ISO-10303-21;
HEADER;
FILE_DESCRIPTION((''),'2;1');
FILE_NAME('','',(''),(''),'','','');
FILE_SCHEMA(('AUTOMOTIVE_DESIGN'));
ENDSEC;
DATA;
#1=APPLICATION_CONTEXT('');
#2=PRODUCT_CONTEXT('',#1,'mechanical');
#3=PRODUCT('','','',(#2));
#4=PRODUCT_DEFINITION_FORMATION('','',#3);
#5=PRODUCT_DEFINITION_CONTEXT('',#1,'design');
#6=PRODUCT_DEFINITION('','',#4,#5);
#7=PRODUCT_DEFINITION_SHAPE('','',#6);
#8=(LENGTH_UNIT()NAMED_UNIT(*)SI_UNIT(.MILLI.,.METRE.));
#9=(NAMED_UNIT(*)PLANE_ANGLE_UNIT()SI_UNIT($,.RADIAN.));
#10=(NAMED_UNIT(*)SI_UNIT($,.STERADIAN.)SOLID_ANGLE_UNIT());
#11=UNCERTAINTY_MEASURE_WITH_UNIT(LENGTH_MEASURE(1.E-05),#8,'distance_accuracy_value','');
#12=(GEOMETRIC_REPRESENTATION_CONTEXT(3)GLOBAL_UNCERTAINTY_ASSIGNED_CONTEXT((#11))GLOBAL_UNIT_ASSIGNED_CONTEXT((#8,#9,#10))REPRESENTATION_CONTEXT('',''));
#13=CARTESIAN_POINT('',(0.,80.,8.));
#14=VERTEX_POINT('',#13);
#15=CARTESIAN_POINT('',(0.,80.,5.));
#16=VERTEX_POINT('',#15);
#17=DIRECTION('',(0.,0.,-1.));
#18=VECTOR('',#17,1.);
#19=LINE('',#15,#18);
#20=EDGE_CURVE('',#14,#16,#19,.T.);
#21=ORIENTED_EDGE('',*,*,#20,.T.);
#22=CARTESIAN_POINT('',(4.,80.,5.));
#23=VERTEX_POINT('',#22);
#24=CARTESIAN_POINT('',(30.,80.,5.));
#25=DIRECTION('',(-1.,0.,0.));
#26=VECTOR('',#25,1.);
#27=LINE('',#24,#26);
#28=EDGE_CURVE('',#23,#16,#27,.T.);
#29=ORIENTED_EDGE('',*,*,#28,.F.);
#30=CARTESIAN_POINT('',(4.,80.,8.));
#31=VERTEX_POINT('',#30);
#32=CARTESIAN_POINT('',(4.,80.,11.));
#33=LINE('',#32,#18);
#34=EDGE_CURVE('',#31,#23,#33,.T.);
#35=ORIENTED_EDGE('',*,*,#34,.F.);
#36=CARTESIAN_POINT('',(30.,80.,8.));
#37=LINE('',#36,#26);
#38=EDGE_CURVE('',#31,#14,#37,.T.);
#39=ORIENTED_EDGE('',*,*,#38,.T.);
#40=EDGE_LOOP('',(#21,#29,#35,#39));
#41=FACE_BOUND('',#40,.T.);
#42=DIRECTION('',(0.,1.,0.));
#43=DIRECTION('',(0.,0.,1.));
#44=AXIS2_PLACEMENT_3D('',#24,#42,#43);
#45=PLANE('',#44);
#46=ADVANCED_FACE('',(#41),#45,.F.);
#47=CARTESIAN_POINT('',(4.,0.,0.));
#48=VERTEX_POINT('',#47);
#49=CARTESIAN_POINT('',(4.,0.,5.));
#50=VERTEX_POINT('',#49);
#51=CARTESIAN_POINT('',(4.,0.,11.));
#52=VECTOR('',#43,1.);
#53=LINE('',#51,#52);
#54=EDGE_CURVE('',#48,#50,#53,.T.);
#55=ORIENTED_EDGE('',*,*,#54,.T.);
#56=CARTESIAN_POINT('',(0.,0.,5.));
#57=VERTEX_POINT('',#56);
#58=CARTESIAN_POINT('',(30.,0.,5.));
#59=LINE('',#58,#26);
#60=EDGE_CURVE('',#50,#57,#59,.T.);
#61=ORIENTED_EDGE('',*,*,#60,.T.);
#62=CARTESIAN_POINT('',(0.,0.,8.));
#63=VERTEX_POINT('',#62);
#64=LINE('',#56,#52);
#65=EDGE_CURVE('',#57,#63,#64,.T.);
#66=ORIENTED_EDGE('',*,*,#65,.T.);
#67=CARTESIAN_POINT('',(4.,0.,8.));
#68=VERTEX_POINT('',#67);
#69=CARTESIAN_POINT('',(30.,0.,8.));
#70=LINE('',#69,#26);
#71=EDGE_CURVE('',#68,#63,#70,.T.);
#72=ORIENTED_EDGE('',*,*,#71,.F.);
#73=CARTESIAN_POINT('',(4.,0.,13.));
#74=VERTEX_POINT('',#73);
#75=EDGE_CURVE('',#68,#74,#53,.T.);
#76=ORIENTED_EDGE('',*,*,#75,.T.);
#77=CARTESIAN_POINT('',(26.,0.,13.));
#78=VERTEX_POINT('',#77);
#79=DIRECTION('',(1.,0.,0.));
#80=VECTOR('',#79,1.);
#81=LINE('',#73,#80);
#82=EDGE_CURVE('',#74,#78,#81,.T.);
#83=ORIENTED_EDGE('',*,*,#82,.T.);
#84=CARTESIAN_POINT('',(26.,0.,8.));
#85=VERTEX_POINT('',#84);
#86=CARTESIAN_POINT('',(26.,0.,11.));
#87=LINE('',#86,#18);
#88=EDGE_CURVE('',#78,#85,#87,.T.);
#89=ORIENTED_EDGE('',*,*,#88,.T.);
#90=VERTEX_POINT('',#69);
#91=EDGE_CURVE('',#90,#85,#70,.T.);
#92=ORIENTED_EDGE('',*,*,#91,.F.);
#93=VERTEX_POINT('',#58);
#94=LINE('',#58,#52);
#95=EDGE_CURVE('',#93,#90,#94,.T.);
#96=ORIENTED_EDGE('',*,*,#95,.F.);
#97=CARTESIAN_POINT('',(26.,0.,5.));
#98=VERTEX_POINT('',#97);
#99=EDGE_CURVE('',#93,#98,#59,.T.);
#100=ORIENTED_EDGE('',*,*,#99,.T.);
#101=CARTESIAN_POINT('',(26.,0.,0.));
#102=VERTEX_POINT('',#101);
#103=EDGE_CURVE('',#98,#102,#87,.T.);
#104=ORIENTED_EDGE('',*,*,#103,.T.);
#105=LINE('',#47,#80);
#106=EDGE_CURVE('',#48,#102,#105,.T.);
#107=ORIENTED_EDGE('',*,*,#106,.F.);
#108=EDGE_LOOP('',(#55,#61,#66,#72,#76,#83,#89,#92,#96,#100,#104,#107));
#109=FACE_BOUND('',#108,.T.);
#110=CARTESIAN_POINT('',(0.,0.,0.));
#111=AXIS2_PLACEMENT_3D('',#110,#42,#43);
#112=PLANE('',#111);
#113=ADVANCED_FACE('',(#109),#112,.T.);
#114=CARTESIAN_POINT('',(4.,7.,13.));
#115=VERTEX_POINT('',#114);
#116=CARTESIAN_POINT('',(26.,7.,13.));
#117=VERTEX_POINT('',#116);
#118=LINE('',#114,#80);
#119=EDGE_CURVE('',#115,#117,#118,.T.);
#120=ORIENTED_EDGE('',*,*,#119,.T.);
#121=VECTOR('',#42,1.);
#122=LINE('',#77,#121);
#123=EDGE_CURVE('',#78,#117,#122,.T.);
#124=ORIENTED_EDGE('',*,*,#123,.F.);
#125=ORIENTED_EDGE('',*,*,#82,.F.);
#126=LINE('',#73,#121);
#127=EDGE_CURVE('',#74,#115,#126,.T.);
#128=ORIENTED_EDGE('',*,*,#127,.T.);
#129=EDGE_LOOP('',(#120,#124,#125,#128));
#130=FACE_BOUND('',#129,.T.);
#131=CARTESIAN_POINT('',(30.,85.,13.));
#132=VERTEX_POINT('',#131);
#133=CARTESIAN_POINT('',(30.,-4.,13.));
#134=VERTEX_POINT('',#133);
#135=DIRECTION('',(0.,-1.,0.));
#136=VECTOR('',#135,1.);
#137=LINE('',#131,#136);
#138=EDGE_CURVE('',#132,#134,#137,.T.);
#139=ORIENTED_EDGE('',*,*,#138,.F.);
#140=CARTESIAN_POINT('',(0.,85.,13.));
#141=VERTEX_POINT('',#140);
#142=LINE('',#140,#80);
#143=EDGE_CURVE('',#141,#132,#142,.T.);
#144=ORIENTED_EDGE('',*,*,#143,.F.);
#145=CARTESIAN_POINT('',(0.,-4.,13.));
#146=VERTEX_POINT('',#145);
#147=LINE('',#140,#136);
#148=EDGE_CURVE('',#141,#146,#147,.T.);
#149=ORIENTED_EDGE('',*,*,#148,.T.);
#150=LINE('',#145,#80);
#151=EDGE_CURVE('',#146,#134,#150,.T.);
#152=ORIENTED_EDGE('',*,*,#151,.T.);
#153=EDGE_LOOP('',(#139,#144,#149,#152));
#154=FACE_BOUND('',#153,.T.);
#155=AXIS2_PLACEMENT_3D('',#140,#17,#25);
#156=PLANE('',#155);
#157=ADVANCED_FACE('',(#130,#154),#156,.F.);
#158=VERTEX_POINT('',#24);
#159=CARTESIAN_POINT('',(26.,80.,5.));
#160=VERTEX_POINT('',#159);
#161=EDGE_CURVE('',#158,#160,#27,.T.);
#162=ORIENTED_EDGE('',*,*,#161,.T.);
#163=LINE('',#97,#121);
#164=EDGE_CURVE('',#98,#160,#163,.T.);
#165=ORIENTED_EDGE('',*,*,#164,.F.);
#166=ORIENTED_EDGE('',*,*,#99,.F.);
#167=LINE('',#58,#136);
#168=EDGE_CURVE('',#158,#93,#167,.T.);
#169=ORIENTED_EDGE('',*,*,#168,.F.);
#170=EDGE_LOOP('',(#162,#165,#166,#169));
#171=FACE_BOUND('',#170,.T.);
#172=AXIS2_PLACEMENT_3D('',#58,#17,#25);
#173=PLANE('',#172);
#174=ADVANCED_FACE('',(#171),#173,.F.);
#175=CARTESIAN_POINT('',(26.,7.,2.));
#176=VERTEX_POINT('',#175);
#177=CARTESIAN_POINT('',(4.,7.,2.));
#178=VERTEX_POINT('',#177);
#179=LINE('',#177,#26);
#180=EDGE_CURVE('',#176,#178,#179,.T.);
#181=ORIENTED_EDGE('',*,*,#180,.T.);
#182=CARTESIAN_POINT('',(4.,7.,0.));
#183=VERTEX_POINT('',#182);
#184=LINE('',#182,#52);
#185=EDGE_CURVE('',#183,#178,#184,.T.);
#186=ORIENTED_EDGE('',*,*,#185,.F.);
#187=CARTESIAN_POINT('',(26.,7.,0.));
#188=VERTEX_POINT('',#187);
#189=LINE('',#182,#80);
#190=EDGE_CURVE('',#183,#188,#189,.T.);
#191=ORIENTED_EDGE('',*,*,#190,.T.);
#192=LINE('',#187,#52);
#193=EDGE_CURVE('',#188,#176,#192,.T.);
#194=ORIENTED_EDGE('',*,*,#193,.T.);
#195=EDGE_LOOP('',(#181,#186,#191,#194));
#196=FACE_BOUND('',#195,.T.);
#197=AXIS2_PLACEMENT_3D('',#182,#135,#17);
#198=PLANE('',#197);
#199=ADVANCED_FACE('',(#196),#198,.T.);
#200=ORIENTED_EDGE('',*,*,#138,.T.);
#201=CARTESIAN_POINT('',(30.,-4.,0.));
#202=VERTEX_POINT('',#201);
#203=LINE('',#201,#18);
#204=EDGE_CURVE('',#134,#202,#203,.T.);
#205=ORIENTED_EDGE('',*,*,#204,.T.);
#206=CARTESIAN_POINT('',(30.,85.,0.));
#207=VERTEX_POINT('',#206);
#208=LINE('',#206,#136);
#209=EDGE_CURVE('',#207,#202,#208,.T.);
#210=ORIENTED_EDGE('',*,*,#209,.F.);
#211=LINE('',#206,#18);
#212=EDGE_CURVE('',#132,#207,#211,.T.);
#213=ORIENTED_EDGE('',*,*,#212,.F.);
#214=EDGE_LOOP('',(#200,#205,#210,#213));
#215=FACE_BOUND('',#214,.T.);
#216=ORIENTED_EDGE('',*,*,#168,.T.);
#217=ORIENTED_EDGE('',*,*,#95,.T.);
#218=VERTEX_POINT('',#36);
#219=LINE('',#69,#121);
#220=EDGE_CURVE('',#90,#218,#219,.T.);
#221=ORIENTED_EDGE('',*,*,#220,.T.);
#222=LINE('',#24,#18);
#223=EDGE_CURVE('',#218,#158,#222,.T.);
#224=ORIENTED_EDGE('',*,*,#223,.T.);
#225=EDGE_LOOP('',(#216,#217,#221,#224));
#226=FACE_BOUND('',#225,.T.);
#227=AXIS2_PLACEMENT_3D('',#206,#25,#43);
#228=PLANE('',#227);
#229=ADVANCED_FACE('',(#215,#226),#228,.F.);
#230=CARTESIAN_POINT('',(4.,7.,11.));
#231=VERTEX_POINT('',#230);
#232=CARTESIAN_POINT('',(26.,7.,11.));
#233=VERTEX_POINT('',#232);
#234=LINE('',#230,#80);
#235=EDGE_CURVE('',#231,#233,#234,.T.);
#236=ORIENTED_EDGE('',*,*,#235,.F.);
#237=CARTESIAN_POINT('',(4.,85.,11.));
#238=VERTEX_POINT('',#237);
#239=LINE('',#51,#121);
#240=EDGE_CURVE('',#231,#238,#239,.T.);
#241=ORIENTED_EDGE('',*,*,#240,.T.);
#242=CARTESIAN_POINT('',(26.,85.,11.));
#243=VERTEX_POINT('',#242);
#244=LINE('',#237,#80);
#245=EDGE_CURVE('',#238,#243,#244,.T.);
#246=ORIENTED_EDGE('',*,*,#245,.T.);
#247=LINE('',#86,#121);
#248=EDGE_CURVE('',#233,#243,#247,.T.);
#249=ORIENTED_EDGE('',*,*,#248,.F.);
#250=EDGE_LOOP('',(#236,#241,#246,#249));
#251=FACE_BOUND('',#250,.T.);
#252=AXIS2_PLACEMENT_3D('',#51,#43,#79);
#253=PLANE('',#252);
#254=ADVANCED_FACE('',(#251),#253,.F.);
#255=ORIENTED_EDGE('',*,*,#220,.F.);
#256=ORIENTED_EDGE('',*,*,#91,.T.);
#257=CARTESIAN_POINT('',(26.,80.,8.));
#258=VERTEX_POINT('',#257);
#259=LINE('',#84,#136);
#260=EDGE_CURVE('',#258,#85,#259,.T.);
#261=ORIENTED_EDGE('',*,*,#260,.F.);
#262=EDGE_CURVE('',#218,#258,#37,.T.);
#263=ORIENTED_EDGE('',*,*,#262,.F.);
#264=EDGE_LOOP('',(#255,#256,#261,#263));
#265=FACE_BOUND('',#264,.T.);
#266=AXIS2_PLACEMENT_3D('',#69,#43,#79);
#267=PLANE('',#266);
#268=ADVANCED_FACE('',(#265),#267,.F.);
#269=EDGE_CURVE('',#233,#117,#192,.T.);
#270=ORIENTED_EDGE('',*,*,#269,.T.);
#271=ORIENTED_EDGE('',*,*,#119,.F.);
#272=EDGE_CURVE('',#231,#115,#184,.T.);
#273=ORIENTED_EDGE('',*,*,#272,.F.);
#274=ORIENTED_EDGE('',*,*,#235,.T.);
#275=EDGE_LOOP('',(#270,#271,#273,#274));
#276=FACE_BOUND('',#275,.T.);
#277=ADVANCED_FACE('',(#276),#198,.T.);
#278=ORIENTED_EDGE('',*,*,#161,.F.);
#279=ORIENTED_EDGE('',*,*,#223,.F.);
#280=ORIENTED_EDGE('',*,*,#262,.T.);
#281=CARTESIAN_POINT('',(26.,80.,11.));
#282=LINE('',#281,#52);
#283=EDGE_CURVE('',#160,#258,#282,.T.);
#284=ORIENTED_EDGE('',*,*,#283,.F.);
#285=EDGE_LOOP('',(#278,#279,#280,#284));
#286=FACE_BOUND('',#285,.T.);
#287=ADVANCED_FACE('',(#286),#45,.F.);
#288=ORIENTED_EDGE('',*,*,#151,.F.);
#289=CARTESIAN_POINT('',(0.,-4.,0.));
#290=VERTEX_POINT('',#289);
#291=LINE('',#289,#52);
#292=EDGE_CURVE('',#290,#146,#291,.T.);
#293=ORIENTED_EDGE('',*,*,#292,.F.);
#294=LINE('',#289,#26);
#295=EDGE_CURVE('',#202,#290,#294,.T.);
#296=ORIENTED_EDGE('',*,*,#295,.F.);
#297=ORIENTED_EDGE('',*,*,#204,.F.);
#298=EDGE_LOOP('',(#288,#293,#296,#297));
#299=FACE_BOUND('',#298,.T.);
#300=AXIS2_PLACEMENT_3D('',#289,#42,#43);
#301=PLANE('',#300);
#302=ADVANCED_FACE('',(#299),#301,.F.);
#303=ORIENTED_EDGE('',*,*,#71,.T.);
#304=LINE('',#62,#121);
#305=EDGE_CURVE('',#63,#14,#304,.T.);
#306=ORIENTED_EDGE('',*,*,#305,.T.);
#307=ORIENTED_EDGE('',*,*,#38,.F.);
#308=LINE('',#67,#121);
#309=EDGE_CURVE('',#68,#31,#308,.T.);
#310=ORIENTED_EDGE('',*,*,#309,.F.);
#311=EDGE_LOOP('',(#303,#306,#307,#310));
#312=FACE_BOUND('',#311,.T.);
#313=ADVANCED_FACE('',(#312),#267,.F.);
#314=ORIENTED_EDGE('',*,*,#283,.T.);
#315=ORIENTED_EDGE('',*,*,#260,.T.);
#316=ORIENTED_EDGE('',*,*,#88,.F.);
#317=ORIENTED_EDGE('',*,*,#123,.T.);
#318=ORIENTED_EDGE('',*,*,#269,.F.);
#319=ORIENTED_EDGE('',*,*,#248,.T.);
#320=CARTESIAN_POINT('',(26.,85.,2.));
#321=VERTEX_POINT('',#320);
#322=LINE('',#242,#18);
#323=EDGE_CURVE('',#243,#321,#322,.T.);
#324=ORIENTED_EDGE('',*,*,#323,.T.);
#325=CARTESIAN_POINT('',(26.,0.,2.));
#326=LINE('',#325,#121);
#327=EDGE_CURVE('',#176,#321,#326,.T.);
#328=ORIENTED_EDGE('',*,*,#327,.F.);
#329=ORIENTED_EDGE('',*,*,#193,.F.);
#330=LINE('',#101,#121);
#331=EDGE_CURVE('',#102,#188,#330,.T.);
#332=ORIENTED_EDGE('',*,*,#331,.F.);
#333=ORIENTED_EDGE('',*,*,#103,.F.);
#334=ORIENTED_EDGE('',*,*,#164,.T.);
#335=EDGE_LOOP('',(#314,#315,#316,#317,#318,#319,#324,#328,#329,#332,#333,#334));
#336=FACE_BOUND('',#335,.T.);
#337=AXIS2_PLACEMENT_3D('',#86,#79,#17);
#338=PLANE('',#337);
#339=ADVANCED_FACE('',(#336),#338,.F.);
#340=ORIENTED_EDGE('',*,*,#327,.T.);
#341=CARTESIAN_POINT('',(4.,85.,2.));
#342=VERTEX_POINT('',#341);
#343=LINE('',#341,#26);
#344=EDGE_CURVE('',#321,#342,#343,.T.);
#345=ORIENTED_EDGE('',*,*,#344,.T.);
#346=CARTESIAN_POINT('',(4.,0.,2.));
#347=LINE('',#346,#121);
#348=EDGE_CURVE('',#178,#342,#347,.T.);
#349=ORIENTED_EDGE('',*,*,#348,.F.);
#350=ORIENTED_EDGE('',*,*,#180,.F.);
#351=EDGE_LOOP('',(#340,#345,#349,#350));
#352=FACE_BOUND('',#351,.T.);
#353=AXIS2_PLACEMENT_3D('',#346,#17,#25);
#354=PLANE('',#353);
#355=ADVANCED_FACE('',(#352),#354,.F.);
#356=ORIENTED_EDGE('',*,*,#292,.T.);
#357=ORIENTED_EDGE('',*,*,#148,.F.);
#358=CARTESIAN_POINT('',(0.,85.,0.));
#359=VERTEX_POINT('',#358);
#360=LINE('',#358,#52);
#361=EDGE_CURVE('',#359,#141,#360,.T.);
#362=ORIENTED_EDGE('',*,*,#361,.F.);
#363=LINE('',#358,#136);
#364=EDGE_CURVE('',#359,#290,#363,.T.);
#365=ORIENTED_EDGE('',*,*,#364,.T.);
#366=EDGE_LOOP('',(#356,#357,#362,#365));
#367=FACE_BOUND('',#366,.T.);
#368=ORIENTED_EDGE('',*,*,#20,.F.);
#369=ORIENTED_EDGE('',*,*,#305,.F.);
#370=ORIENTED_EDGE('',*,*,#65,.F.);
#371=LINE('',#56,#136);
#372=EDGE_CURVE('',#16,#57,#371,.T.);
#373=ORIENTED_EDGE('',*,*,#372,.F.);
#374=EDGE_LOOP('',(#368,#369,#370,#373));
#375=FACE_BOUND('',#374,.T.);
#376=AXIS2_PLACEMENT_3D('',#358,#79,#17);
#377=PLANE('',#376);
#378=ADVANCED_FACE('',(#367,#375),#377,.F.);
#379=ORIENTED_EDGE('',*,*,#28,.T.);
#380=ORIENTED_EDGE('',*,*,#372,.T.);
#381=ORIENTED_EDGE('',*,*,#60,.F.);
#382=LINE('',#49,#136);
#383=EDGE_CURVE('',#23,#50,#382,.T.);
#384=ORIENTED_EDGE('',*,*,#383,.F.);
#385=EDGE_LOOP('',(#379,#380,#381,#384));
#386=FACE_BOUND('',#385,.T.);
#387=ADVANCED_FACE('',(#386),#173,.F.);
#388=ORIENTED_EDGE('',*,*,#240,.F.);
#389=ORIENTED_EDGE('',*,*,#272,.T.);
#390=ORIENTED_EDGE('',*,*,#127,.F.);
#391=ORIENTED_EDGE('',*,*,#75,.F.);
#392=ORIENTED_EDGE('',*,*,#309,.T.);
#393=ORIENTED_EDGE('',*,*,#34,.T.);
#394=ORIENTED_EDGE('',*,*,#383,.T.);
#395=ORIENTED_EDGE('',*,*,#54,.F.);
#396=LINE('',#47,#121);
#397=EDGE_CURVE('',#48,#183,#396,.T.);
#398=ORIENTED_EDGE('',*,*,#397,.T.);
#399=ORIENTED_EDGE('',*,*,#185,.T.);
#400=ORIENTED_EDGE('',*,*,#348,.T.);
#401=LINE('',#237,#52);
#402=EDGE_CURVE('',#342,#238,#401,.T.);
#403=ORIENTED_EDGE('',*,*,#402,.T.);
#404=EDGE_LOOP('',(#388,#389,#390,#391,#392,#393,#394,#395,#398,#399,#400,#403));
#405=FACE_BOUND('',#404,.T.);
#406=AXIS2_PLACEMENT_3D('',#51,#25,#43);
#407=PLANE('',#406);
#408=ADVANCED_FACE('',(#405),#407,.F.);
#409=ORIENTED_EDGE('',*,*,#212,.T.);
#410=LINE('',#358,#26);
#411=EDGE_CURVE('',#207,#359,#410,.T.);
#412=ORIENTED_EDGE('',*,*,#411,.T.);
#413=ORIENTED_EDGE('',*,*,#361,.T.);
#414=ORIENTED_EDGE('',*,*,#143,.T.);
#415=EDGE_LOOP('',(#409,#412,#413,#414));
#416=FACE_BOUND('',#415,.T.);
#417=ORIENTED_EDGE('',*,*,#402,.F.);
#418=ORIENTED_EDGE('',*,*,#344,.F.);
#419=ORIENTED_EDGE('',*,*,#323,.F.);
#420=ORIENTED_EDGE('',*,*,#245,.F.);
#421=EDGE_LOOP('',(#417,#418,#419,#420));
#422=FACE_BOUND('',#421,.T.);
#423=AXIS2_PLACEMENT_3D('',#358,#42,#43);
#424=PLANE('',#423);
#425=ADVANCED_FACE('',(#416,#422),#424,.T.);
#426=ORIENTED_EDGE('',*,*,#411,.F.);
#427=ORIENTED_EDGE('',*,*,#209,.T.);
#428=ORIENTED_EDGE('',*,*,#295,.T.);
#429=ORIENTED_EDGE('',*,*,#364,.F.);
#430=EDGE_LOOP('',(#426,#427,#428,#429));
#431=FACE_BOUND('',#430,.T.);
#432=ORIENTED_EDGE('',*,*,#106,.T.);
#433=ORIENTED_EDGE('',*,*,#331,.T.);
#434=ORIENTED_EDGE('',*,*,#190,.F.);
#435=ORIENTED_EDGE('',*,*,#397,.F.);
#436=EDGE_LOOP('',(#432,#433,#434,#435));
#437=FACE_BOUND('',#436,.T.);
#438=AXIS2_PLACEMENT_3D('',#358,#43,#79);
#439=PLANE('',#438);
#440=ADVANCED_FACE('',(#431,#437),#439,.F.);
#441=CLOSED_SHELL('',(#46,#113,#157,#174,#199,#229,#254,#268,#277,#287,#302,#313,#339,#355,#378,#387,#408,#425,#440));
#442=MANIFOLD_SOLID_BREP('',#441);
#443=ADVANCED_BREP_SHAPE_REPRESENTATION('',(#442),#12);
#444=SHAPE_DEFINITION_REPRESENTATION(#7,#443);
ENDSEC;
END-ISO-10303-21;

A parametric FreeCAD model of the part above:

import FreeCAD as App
import Part
import Sketcher
from FreeCAD import Vector


def add_polygon(sketch, points):
    """Adds a closed chain of lines whose ends are joined by coincident constraints."""
    first, n = sketch.GeometryCount, len(points)
    for a, b in zip(points, points[1:] + points[:1]):
        sketch.addGeometry(Part.LineSegment(App.Vector(*a, 0), App.Vector(*b, 0)), False)
    for i in range(n):
        sketch.addConstraint(Sketcher.Constraint("Coincident", first + i, 2, first + (i + 1) % n, 1))

doc = App.newDocument("Part")
params = doc.addObject("Spreadsheet::Sheet", "Params")
for row, (alias, value) in enumerate([
    ("sketch1_width", "30 mm"),
    ("sketch1_height", "13 mm"),
    ("pad1_length", "85 mm"),
    ("sketch2_width", "22 mm"),
    ("sketch2_height", "9 mm"),
    ("pocket1_length", "85 mm"),
    ("sketch3_width", "30 mm"),
    ("sketch3_height", "13 mm"),
    ("pad2_length", "4 mm"),
    ("sketch4_width", "22 mm"),
    ("sketch4_height", "7 mm"),
    ("pocket2_length", "13 mm"),
    ("sketch5_width", "80 mm"),
    ("sketch5_height", "3 mm"),
], start=1):
    params.set(f"A{row}", alias)
    params.set(f"B{row}", "=" + value)
    params.setAlias(f"B{row}", alias)

body = doc.addObject("PartDesign::Body", "Body")

# Sketch on XZ plane
sketch1 = doc.addObject("Sketcher::SketchObject", "Sketch")
body.addObject(sketch1)
sketch1.AttachmentSupport = (doc.XZ_Plane, [""])
sketch1.MapMode = "FlatFace"
add_polygon(sketch1, [(0, 0), (0, 13), (30, 13), (30, 0)])  # lines 0-3
sketch1.addConstraint(Sketcher.Constraint("Vertical", 0))
sketch1.addConstraint(Sketcher.Constraint("Horizontal", 1))
sketch1.addConstraint(Sketcher.Constraint("Vertical", 2))
sketch1.addConstraint(Sketcher.Constraint("Horizontal", 3))
sketch1.addConstraint(Sketcher.Constraint("Coincident", 3, 2, -1, 1))
sketch1.addConstraint(Sketcher.Constraint("DistanceX", 1, 1, 1, 2, 30.0))
sketch1.addConstraint(Sketcher.Constraint("DistanceY", 0, 1, 0, 2, 13.0))
sketch1.setExpression("Constraints[9]", "Params.sketch1_width")
sketch1.setExpression("Constraints[10]", "Params.sketch1_height")
pad1 = doc.addObject("PartDesign::Pad", "Pad")
body.addObject(pad1)
pad1.Profile = sketch1
pad1.setExpression("Length", "Params.pad1_length")
pad1.Reversed = True

# Sketch on XZ plane
sketch2 = doc.addObject("Sketcher::SketchObject", "Sketch001")
body.addObject(sketch2)
sketch2.AttachmentSupport = (doc.XZ_Plane, [""])
sketch2.MapMode = "FlatFace"
sketch2.AttachmentOffset = App.Placement(Vector(0, 0, -85), App.Rotation())
add_polygon(sketch2, [(4, 2), (4, 11), (26, 11), (26, 2)])  # lines 0-3
sketch2.addConstraint(Sketcher.Constraint("Vertical", 0))
sketch2.addConstraint(Sketcher.Constraint("Horizontal", 1))
sketch2.addConstraint(Sketcher.Constraint("Vertical", 2))
sketch2.addConstraint(Sketcher.Constraint("Horizontal", 3))
sketch2.addConstraint(Sketcher.Constraint("DistanceX", 1, 1, 1, 2, 22.0))
sketch2.addConstraint(Sketcher.Constraint("DistanceY", 0, 1, 0, 2, 9.0))
sketch2.addConstraint(Sketcher.Constraint("DistanceX", -1, 1, 0, 2, 4.0))
sketch2.addConstraint(Sketcher.Constraint("DistanceY", -1, 1, 0, 2, 11.0))
sketch2.setExpression("Constraints[8]", "Params.sketch2_width")
sketch2.setExpression("Constraints[9]", "Params.sketch2_height")
pocket1 = doc.addObject("PartDesign::Pocket", "Pocket")
body.addObject(pocket1)
pocket1.Profile = sketch2
pocket1.setExpression("Length", "Params.pocket1_length")
pocket1.Reversed = True

# Sketch on XZ plane
sketch3 = doc.addObject("Sketcher::SketchObject", "Sketch002")
body.addObject(sketch3)
sketch3.AttachmentSupport = (doc.XZ_Plane, [""])
sketch3.MapMode = "FlatFace"
add_polygon(sketch3, [(0, 0), (0, 13), (30, 13), (30, 0)])  # lines 0-3
sketch3.addConstraint(Sketcher.Constraint("Vertical", 0))
sketch3.addConstraint(Sketcher.Constraint("Horizontal", 1))
sketch3.addConstraint(Sketcher.Constraint("Vertical", 2))
sketch3.addConstraint(Sketcher.Constraint("Horizontal", 3))
sketch3.addConstraint(Sketcher.Constraint("Coincident", 3, 2, -1, 1))
sketch3.addConstraint(Sketcher.Constraint("DistanceX", 1, 1, 1, 2, 30.0))
sketch3.addConstraint(Sketcher.Constraint("DistanceY", 0, 1, 0, 2, 13.0))
sketch3.setExpression("Constraints[9]", "Params.sketch3_width")
sketch3.setExpression("Constraints[10]", "Params.sketch3_height")
pad2 = doc.addObject("PartDesign::Pad", "Pad001")
body.addObject(pad2)
pad2.Profile = sketch3
pad2.setExpression("Length", "Params.pad2_length")

# Sketch on XY plane
sketch4 = doc.addObject("Sketcher::SketchObject", "Sketch003")
body.addObject(sketch4)
sketch4.AttachmentSupport = (doc.XY_Plane, [""])
sketch4.MapMode = "FlatFace"
sketch4.AttachmentOffset = App.Placement(Vector(0, 0, 13), App.Rotation())
add_polygon(sketch4, [(4, 7), (4, 0), (26, 0), (26, 7)])  # lines 0-3
sketch4.addConstraint(Sketcher.Constraint("Vertical", 0))
sketch4.addConstraint(Sketcher.Constraint("Horizontal", 1))
sketch4.addConstraint(Sketcher.Constraint("Vertical", 2))
sketch4.addConstraint(Sketcher.Constraint("Horizontal", 3))
sketch4.addConstraint(Sketcher.Constraint("PointOnObject", 0, 2, -1))
sketch4.addConstraint(Sketcher.Constraint("DistanceX", 1, 1, 1, 2, 22.0))
sketch4.addConstraint(Sketcher.Constraint("DistanceY", 0, 2, 0, 1, 7.0))
sketch4.addConstraint(Sketcher.Constraint("DistanceX", -1, 1, 0, 2, 4.0))
sketch4.setExpression("Constraints[9]", "Params.sketch4_width")
sketch4.setExpression("Constraints[10]", "Params.sketch4_height")
pocket2 = doc.addObject("PartDesign::Pocket", "Pocket001")
body.addObject(pocket2)
pocket2.Profile = sketch4
pocket2.setExpression("Length", "Params.pocket2_length")

# Sketch on YZ plane
sketch5 = doc.addObject("Sketcher::SketchObject", "Sketch004")
body.addObject(sketch5)
sketch5.AttachmentSupport = (doc.YZ_Plane, [""])
sketch5.MapMode = "FlatFace"
add_polygon(sketch5, [(80, 5), (0, 5), (0, 8), (80, 8)])  # lines 0-3
sketch5.addConstraint(Sketcher.Constraint("Horizontal", 0))
sketch5.addConstraint(Sketcher.Constraint("Vertical", 1))
sketch5.addConstraint(Sketcher.Constraint("Horizontal", 2))
sketch5.addConstraint(Sketcher.Constraint("Vertical", 3))
sketch5.addConstraint(Sketcher.Constraint("PointOnObject", 0, 2, -2))
sketch5.addConstraint(Sketcher.Constraint("DistanceX", 0, 2, 0, 1, 80.0))
sketch5.addConstraint(Sketcher.Constraint("DistanceY", 1, 1, 1, 2, 3.0))
sketch5.addConstraint(Sketcher.Constraint("DistanceY", -1, 1, 0, 2, 5.0))
sketch5.setExpression("Constraints[9]", "Params.sketch5_width")
sketch5.setExpression("Constraints[10]", "Params.sketch5_height")
pocket3 = doc.addObject("PartDesign::Pocket", "Pocket002")
body.addObject(pocket3)
pocket3.Profile = sketch5
pocket3.Type = "ThroughAll"
pocket3.Reversed = True

doc.recompute()
